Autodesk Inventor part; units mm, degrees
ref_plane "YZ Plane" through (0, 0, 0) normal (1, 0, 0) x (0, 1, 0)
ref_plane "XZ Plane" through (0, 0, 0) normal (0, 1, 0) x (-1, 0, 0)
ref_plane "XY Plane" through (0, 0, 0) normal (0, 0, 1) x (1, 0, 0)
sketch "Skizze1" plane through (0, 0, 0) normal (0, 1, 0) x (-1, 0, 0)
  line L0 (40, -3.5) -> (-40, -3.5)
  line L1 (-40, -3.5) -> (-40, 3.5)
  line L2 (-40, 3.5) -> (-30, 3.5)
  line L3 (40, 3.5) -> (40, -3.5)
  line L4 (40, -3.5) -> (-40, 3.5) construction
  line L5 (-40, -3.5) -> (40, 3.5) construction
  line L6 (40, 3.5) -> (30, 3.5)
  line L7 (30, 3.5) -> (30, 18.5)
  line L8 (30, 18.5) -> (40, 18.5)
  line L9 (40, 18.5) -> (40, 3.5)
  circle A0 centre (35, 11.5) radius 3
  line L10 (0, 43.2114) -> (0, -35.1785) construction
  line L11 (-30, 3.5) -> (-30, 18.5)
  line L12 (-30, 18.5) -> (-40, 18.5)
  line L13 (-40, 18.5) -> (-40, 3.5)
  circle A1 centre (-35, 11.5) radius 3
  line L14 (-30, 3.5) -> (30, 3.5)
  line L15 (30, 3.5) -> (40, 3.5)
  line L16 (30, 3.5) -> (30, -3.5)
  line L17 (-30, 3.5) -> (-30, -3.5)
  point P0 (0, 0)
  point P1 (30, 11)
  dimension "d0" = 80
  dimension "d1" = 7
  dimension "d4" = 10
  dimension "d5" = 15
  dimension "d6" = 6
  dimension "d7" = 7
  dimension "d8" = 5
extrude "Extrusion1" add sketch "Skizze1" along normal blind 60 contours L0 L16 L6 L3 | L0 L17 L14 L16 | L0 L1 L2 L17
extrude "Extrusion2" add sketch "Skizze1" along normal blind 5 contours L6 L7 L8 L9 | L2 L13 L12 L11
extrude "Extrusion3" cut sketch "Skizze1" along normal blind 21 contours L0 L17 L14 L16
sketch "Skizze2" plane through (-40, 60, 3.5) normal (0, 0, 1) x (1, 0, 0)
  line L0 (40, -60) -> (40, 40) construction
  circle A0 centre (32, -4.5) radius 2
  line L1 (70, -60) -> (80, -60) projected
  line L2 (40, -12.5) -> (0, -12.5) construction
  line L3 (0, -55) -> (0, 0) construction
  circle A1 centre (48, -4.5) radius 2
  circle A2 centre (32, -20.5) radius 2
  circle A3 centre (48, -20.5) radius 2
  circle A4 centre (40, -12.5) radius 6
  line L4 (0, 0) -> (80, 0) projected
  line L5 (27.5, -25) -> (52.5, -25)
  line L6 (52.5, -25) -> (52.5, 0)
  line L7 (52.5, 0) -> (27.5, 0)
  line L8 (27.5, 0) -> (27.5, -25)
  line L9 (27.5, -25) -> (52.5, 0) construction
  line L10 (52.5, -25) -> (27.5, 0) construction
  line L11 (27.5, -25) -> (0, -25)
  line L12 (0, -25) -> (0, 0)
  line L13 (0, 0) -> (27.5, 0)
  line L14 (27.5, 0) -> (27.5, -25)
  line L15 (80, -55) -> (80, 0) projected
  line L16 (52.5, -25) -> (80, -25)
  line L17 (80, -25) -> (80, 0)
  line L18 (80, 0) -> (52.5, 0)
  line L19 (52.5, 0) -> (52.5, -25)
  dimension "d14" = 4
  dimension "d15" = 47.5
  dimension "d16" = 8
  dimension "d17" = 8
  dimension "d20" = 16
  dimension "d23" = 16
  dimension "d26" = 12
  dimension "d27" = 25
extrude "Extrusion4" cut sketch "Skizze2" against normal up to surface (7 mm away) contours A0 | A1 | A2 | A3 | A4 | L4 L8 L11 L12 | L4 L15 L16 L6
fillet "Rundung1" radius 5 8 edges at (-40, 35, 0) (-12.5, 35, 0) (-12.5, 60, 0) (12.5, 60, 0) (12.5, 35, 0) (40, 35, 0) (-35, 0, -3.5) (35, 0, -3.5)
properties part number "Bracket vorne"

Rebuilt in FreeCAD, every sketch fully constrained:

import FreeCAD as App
import Part
import Sketcher

V = App.Vector


def edges_at(feature, points):
    """Names of the edges that pass closest to the given points."""
    edges = feature.Shape.Edges
    near = lambda p: min(range(len(edges)), key=lambda i: edges[i].distToShape(Part.Vertex(*p))[0])
    return sorted({f"Edge{near(p) + 1}" for p in points})


def add_polygon(sketch, points):
    """Adds a closed chain of lines whose ends are joined by coincident constraints."""
    first, n = sketch.GeometryCount, len(points)
    for a, b in zip(points, points[1:] + points[:1]):
        sketch.addGeometry(Part.LineSegment(App.Vector(*a, 0), App.Vector(*b, 0)), False)
    for i in range(n):
        sketch.addConstraint(Sketcher.Constraint("Coincident", first + i, 2, first + (i + 1) % n, 1))

doc = App.newDocument("Part")
body = doc.addObject("PartDesign::Body", "Body")

# Sketch on XZ plane
sketch1 = body.newObject("Sketcher::SketchObject", "Sketch")
sketch1.AttachmentSupport = (doc.getObject("XZ_Plane"), [""])
sketch1.MapMode = "FlatFace"
add_polygon(sketch1, [(-40, -3.5), (-40, 3.5), (40, 3.5), (40, -3.5)])  # lines 0-3
sketch1.addConstraint(Sketcher.Constraint("Vertical", 0))
sketch1.addConstraint(Sketcher.Constraint("Horizontal", 1))
sketch1.addConstraint(Sketcher.Constraint("Vertical", 2))
sketch1.addConstraint(Sketcher.Constraint("Horizontal", 3))
sketch1.addConstraint(Sketcher.Constraint("Symmetric", 0, 2, 2, 2, -1, 1))
sketch1.addConstraint(Sketcher.Constraint("DistanceX", 1, 1, 1, 2, 80.0))
sketch1.addConstraint(Sketcher.Constraint("DistanceY", 0, 1, 0, 2, 7.0))
pad1 = body.newObject("PartDesign::Pad", "Pad")
pad1.Profile = sketch1
pad1.Length = 60
pad1.Reversed = True

# Sketch on XZ plane
sketch2 = body.newObject("Sketcher::SketchObject", "Sketch001")
sketch2.AttachmentSupport = (doc.getObject("XZ_Plane"), [""])
sketch2.MapMode = "FlatFace"
add_polygon(sketch2, [(-30, 3.5), (-40, 3.5), (-40, 18.5), (-30, 18.5)])  # lines 0-3
sketch2.addGeometry(Part.Circle(V(-35, 11.5, 0), V(0, 0, 1), 3), False)  # 4
add_polygon(sketch2, [(40, 3.5), (30, 3.5), (30, 18.5), (40, 18.5)])  # lines 5-8
sketch2.addGeometry(Part.Circle(V(35, 11.5, 0), V(0, 0, 1), 3), False)  # 9
sketch2.addConstraint(Sketcher.Constraint("Horizontal", 0))
sketch2.addConstraint(Sketcher.Constraint("Vertical", 1))
sketch2.addConstraint(Sketcher.Constraint("Horizontal", 2))
sketch2.addConstraint(Sketcher.Constraint("Vertical", 3))
sketch2.addConstraint(Sketcher.Constraint("Horizontal", 5))
sketch2.addConstraint(Sketcher.Constraint("Vertical", 6))
sketch2.addConstraint(Sketcher.Constraint("Horizontal", 7))
sketch2.addConstraint(Sketcher.Constraint("Vertical", 8))
sketch2.addConstraint(Sketcher.Constraint("Equal", 4, 9))
sketch2.addConstraint(Sketcher.Constraint("Symmetric", 4, 3, 9, 3, -2))
sketch2.addConstraint(Sketcher.Constraint("Symmetric", 3, 2, 5, 2, -2))
sketch2.addConstraint(Sketcher.Constraint("Symmetric", 1, 2, 7, 2, -2))
sketch2.addConstraint(Sketcher.Constraint("Diameter", 4, 6.0))
sketch2.addConstraint(Sketcher.Constraint("DistanceX", 0, 2, 0, 1, 10.0))
sketch2.addConstraint(Sketcher.Constraint("DistanceY", 1, 1, 1, 2, 15.0))
sketch2.addConstraint(Sketcher.Constraint("DistanceX", 0, 2, 4, 3, 5.0))
sketch2.addConstraint(Sketcher.Constraint("DistanceY", 4, 3, 1, 2, 7.0))
sketch2.addConstraint(Sketcher.Constraint("DistanceX", 4, 3, -1, 1, 35.0))
sketch2.addConstraint(Sketcher.Constraint("DistanceY", -1, 1, 4, 3, 11.5))
pad2 = body.newObject("PartDesign::Pad", "Pad001")
pad2.Profile = sketch2
pad2.Length = 5
pad2.Reversed = True

# Sketch on XZ plane
sketch3 = body.newObject("Sketcher::SketchObject", "Sketch002")
sketch3.AttachmentSupport = (doc.getObject("XZ_Plane"), [""])
sketch3.MapMode = "FlatFace"
add_polygon(sketch3, [(30, -3.5), (-30, -3.5), (-30, 3.5), (30, 3.5)])  # lines 0-3
sketch3.addConstraint(Sketcher.Constraint("Horizontal", 0))
sketch3.addConstraint(Sketcher.Constraint("Vertical", 1))
sketch3.addConstraint(Sketcher.Constraint("Horizontal", 2))
sketch3.addConstraint(Sketcher.Constraint("Vertical", 3))
sketch3.addConstraint(Sketcher.Constraint("Symmetric", 0, 2, 2, 2, -1, 1))
sketch3.addConstraint(Sketcher.Constraint("DistanceY", 1, 1, 1, 2, 7.0))
sketch3.addConstraint(Sketcher.Constraint("DistanceX", 0, 2, 0, 1, 60.0))
pocket1 = body.newObject("PartDesign::Pocket", "Pocket")
pocket1.Profile = sketch3
pocket1.Length = 21

# Sketch on XY plane
sketch4 = body.newObject("Sketcher::SketchObject", "Sketch003")
sketch4.AttachmentSupport = (doc.getObject("XY_Plane"), [""])
sketch4.MapMode = "FlatFace"
sketch4.AttachmentOffset = App.Placement(V(0, 0, 3.5), App.Rotation())
sketch4.addGeometry(Part.Circle(V(-8, 55.5, 0), V(0, 0, 1), 2), False)  # 0
sketch4.addGeometry(Part.Circle(V(8, 55.5, 0), V(0, 0, 1), 2), False)  # 1
sketch4.addGeometry(Part.Circle(V(-8, 39.5, 0), V(0, 0, 1), 2), False)  # 2
sketch4.addGeometry(Part.Circle(V(8, 39.5, 0), V(0, 0, 1), 2), False)  # 3
sketch4.addGeometry(Part.Circle(V(0, 47.5, 0), V(0, 0, 1), 6), False)  # 4
add_polygon(sketch4, [(-12.5, 60), (-40, 60), (-40, 35), (-12.5, 35)])  # lines 5-8
add_polygon(sketch4, [(40, 60), (12.5, 60), (12.5, 35), (40, 35)])  # lines 9-12
sketch4.addConstraint(Sketcher.Constraint("Horizontal", 5))
sketch4.addConstraint(Sketcher.Constraint("Vertical", 6))
sketch4.addConstraint(Sketcher.Constraint("Horizontal", 7))
sketch4.addConstraint(Sketcher.Constraint("Vertical", 8))
sketch4.addConstraint(Sketcher.Constraint("Horizontal", 9))
sketch4.addConstraint(Sketcher.Constraint("Vertical", 10))
sketch4.addConstraint(Sketcher.Constraint("Horizontal", 11))
sketch4.addConstraint(Sketcher.Constraint("Vertical", 12))
sketch4.addConstraint(Sketcher.Constraint("Equal", 0, 1))
sketch4.addConstraint(Sketcher.Constraint("Equal", 1, 2))
sketch4.addConstraint(Sketcher.Constraint("Equal", 2, 3))
sketch4.addConstraint(Sketcher.Constraint("Symmetric", 0, 3, 1, 3, -2))
sketch4.addConstraint(Sketcher.Constraint("Symmetric", 2, 3, 3, 3, -2))
sketch4.addConstraint(Sketcher.Constraint("Symmetric", 8, 2, 9, 2, -2))
sketch4.addConstraint(Sketcher.Constraint("Symmetric", 6, 2, 11, 2, -2))
sketch4.addConstraint(Sketcher.Constraint("PointOnObject", 4, 3, -2))
sketch4.addConstraint(Sketcher.Constraint("Vertical", 0, 3, 2, 3))
sketch4.addConstraint(Sketcher.Constraint("Diameter", 0, 4.0))
sketch4.addConstraint(Sketcher.Constraint("Diameter", 4, 12.0))
sketch4.addConstraint(Sketcher.Constraint("DistanceY", 6, 2, 6, 1, 25.0))
sketch4.addConstraint(Sketcher.Constraint("DistanceX", 0, 3, -1, 1, 8.0))
sketch4.addConstraint(Sketcher.Constraint("DistanceY", 2, 3, 0, 3, 16.0))
sketch4.addConstraint(Sketcher.Constraint("DistanceY", 4, 3, 0, 3, 8.0))
sketch4.addConstraint(Sketcher.Constraint("DistanceX", 8, 2, 9, 2, 25.0))
sketch4.addConstraint(Sketcher.Constraint("DistanceY", -1, 1, 4, 3, 47.5))
sketch4.addConstraint(Sketcher.Constraint("DistanceX", 5, 2, 5, 1, 27.5))
sketch4.addConstraint(Sketcher.Constraint("DistanceY", -1, 1, 5, 2, 60.0))
pocket2 = body.newObject("PartDesign::Pocket", "Pocket001")
pocket2.Profile = sketch4
pocket2.Length = 7
doc.recompute()

fillet = body.newObject("PartDesign::Fillet", "Fillet")
fillet.Base = (pocket2, edges_at(pocket2, [
    (-40, 35, 0),
    (-12.5, 35, 0),
    (-12.5, 60, 0),
    (12.5, 60, 0),
    (12.5, 35, 0),
    (40, 35, 0),
    (-35, 0, -3.5),
    (35, 0, -3.5),
]))
fillet.Radius = 5

doc.recompute()
